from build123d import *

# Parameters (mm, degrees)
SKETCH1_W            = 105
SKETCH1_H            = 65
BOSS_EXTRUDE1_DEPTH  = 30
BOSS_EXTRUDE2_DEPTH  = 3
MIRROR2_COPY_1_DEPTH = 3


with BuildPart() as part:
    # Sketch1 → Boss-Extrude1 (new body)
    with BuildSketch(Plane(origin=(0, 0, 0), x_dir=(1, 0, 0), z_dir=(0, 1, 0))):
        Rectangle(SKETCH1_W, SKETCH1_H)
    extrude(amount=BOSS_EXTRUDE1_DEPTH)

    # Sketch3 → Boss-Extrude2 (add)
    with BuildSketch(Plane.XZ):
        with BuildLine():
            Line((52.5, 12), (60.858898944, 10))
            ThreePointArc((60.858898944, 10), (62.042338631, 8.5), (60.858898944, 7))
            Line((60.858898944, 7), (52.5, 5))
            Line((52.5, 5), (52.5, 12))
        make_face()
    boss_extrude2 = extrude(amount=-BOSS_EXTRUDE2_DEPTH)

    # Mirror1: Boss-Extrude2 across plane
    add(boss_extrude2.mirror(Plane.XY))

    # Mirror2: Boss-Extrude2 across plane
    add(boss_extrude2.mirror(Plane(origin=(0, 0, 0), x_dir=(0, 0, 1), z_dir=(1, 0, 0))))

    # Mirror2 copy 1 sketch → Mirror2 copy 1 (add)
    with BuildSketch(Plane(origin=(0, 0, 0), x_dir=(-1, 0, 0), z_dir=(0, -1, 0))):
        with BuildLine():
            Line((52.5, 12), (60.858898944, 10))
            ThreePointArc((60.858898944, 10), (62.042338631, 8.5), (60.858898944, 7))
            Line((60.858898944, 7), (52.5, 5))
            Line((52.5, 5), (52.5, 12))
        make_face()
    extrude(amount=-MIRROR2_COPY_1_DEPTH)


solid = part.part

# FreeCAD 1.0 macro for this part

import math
import FreeCAD as App
import Part
import Sketcher
from FreeCAD import Vector


def add_polygon(sketch, points):
    """Adds a closed chain of lines whose ends are joined by coincident constraints."""
    first, n = sketch.GeometryCount, len(points)
    for a, b in zip(points, points[1:] + points[:1]):
        sketch.addGeometry(Part.LineSegment(App.Vector(*a, 0), App.Vector(*b, 0)), False)
    for i in range(n):
        sketch.addConstraint(Sketcher.Constraint("Coincident", first + i, 2, first + (i + 1) % n, 1))

doc = App.newDocument("Part")
body = doc.addObject("PartDesign::Body", "Body")

# Sketch on XZ plane
sketch1 = body.newObject("Sketcher::SketchObject", "Sketch")
sketch1.AttachmentSupport = (doc.getObject("XZ_Plane"), [""])
sketch1.MapMode = "FlatFace"
add_polygon(sketch1, [(-52, -32), (-52, 32), (52, 32), (52, -32)])  # lines 0-3
sketch1.addConstraint([
    Sketcher.Constraint("Vertical", 0),
    Sketcher.Constraint("Horizontal", 1),
    Sketcher.Constraint("Vertical", 2),
    Sketcher.Constraint("Horizontal", 3),
    Sketcher.Constraint("Symmetric", 0, 2, 2, 2, -1, 1),
    Sketcher.Constraint("DistanceX", 1, 1, 1, 2, 105.0),
    Sketcher.Constraint("DistanceY", 0, 1, 0, 2, 65.0),
])
pad1 = body.newObject("PartDesign::Pad", "Pad")
pad1.Profile = sketch1
pad1.Length = 30
pad1.Reversed = True

# Sketch on XZ plane
sketch2 = body.newObject("Sketcher::SketchObject", "Sketch001")
sketch2.AttachmentSupport = (doc.getObject("XZ_Plane"), [""])
sketch2.MapMode = "FlatFace"
sketch2.addGeometry([
    Part.LineSegment(Vector(60.9, 10, 0), Vector(52.5, 12, 0)),
    Part.LineSegment(Vector(52.5, 12, 0), Vector(52.5, 5, 0)),
    Part.LineSegment(Vector(52.5, 5, 0), Vector(60.9, 7, 0)),
    Part.ArcOfCircle(Part.Circle(Vector(60.5, 8.5, 0), Vector(0, 0, 1), 1.5), math.radians(-77), math.radians(77)),
], False)
sketch2.addConstraint([
    Sketcher.Constraint("Coincident", 0, 2, 1, 1),
    Sketcher.Constraint("Coincident", 1, 2, 2, 1),
    Sketcher.Constraint("Tangent", 2, 2, 3, 1),
    Sketcher.Constraint("Tangent", 3, 2, 0, 1),
    Sketcher.Constraint("Vertical", 1),
    Sketcher.Constraint("Vertical", 2, 2, 3, 2),
    Sketcher.Constraint("DistanceY", 1, 2, 1, 1, 7.0),
    Sketcher.Constraint("DistanceY", -1, 1, 0, 2, 12.0),
    Sketcher.Constraint("DistanceY", -1, 1, 2, 2, 7.0),
    Sketcher.Constraint("DistanceX", 0, 2, 3, 3, 8.0),
    Sketcher.Constraint("DistanceX", -1, 1, 3, 3, 60.5),
])
pad2 = body.newObject("PartDesign::Pad", "Pad001")
pad2.Profile = sketch2
pad2.Length = 3
pad2.Reversed = True
doc.recompute()

mirrored = body.newObject("PartDesign::Mirrored", "Mirrored")
mirrored.Originals = [pad2]
mirrored.MirrorPlane = (doc.getObject("XY_Plane"), [""])
body.Tip = mirrored
doc.recompute()

mirrored2 = body.newObject("PartDesign::Mirrored", "Mirrored001")
mirrored2.Originals = [pad2]
mirrored2.MirrorPlane = (doc.getObject("YZ_Plane"), [""])
body.Tip = mirrored2

# Sketch on XZ plane
sketch3 = body.newObject("Sketcher::SketchObject", "Sketch002")
sketch3.AttachmentSupport = (doc.getObject("XZ_Plane"), [""])
sketch3.MapMode = "FlatFace"
sketch3.addGeometry([
    Part.LineSegment(Vector(-60.9, -10, 0), Vector(-52.5, -12, 0)),
    Part.LineSegment(Vector(-52.5, -12, 0), Vector(-52.5, -5, 0)),
    Part.LineSegment(Vector(-52.5, -5, 0), Vector(-60.9, -7, 0)),
    Part.ArcOfCircle(Part.Circle(Vector(-60.5, -8.5, 0), Vector(0, 0, 1), 1.5), math.radians(103), math.radians(257)),
], False)
sketch3.addConstraint([
    Sketcher.Constraint("Coincident", 0, 2, 1, 1),
    Sketcher.Constraint("Coincident", 1, 2, 2, 1),
    Sketcher.Constraint("Tangent", 2, 2, 3, 1),
    Sketcher.Constraint("Tangent", 3, 2, 0, 1),
    Sketcher.Constraint("Vertical", 1),
    Sketcher.Constraint("Vertical", 2, 2, 3, 2),
    Sketcher.Constraint("DistanceY", 1, 1, 1, 2, 7.0),
    Sketcher.Constraint("DistanceY", 0, 2, -1, 1, 12.0),
    Sketcher.Constraint("DistanceY", 2, 2, -1, 1, 7.0),
    Sketcher.Constraint("DistanceX", 3, 3, 0, 2, 8.0),
    Sketcher.Constraint("DistanceX", 3, 3, -1, 1, 60.5),
])
pad3 = body.newObject("PartDesign::Pad", "Pad002")
pad3.Profile = sketch3
pad3.Length = 3
pad3.Reversed = True

doc.recompute()
